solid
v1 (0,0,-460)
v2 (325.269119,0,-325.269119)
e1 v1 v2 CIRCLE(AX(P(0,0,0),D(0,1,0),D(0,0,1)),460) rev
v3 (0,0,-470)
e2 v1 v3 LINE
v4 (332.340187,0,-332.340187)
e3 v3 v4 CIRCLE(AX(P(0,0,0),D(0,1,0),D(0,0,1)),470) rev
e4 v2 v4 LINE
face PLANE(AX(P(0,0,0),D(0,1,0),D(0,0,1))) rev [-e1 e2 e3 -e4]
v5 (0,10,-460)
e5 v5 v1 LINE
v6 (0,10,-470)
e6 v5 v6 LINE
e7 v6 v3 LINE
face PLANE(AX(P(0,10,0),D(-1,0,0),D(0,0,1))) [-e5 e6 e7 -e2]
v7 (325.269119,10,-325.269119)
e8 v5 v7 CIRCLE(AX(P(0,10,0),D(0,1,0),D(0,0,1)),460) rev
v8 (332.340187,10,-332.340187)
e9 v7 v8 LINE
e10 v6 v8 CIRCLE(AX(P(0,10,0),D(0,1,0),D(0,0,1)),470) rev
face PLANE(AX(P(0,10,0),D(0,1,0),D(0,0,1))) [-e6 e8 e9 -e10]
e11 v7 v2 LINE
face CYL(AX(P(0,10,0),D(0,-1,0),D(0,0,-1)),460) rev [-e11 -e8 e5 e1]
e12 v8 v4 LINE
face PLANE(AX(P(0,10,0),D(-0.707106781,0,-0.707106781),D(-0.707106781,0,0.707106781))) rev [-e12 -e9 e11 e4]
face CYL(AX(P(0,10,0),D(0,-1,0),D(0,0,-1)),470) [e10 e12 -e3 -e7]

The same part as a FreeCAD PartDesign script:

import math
import FreeCAD as App
import Part
import Sketcher

V = App.Vector
Q = App.Units.Quantity

doc = App.newDocument("Part")
body = doc.addObject("PartDesign::Body", "Body")

sketch1 = body.newObject("Sketcher::SketchObject", "Sketch")
sketch1.AttachmentSupport = (doc.getObject("XZ_Plane"), [""])
sketch1.MapMode = "FlatFace"
sketch1.addGeometry([
    Part.ArcOfCircle(Part.Circle(V(0, 0, 0), V(0, 0, 1), 470), math.radians(-90), math.radians(-45)),
    Part.LineSegment(V(0, -470, 0), V(0, -460, 0)),
    Part.ArcOfCircle(Part.Circle(V(0, 0, 0), V(0, 0, 1), 460), math.radians(-90), math.radians(-45)),
    Part.LineSegment(V(325, -325, 0), V(332, -332, 0)),
], False)
sketch1.addConstraint([
    Sketcher.Constraint("Coincident", 0, 1, 1, 1),
    Sketcher.Constraint("Coincident", 1, 2, 2, 1),
    Sketcher.Constraint("Coincident", 2, 2, 3, 1),
    Sketcher.Constraint("Coincident", 3, 2, 0, 2),
    Sketcher.Constraint("Vertical", 1),
    Sketcher.Constraint("Coincident", 0, 3, -1, 1),
    Sketcher.Constraint("Coincident", 2, 3, -1, 1),
    Sketcher.Constraint("PointOnObject", 1, 2, -2),
    Sketcher.Constraint("Radius", 0, 470.0),
    Sketcher.Constraint("Radius", 2, 460.0),
    Sketcher.Constraint("Angle", 3, Q("-45 deg")),
    Sketcher.Constraint("DistanceX", -1, 1, 3, 2, 332.340187),
])
pad1 = body.newObject("PartDesign::Pad", "Pad")
pad1.Profile = sketch1
pad1.Length = 10
pad1.Reversed = True

doc.recompute()
